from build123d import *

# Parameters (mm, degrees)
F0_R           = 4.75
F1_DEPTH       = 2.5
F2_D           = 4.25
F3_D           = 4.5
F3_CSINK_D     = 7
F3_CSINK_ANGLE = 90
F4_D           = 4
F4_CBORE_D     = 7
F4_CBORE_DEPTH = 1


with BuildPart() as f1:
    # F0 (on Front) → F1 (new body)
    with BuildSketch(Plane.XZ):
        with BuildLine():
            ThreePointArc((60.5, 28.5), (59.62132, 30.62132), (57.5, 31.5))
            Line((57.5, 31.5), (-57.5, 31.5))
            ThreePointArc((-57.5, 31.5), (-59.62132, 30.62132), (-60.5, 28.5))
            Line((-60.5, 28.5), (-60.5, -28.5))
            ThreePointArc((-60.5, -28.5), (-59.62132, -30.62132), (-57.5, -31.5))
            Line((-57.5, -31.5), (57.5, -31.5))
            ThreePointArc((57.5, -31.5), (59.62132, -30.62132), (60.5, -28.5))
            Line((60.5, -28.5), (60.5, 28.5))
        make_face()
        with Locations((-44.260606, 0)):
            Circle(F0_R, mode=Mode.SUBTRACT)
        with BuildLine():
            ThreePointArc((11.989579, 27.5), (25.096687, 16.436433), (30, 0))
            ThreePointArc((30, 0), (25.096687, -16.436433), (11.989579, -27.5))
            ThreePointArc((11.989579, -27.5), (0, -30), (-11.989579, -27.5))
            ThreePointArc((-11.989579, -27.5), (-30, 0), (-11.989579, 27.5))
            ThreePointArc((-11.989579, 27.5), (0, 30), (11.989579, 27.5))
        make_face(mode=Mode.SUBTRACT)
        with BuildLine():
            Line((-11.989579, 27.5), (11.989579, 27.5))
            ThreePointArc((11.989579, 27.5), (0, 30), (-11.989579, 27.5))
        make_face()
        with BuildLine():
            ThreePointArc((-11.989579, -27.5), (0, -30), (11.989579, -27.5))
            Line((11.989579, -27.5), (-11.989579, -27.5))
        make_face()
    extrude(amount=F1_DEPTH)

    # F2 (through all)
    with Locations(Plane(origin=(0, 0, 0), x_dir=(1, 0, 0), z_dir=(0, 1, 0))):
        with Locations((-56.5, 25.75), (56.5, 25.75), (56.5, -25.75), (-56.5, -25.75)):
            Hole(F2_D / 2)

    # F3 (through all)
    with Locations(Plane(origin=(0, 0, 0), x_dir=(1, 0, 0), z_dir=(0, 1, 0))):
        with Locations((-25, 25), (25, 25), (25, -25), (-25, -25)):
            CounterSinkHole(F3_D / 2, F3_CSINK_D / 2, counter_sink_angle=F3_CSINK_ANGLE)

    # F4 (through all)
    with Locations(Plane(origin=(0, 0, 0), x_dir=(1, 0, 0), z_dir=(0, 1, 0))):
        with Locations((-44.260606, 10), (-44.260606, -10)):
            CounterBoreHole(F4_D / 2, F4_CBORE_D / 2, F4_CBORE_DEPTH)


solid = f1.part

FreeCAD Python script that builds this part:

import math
import FreeCAD as App
import Part
import Sketcher
Q = App.Units.Quantity

doc = App.newDocument("Part")
body = doc.addObject("PartDesign::Body", "Body")

# Sketch on XZ plane
sketch1 = doc.addObject("Sketcher::SketchObject", "Sketch")
body.addObject(sketch1)
sketch1.AttachmentSupport = (doc.XZ_Plane, [""])
sketch1.MapMode = "FlatFace"
sketch1.addGeometry(Part.ArcOfCircle(Part.Circle(App.Vector(57.499999, 28.499999, 0), App.Vector(0, 0, 1), 3.000001), math.radians(0.000022), math.radians(89.999978)), False)
sketch1.addGeometry(Part.LineSegment(App.Vector(57.5, 31.5, 0), App.Vector(-57.5, 31.5, 0)), False)
sketch1.addGeometry(Part.ArcOfCircle(Part.Circle(App.Vector(-57.499999, 28.499999, 0), App.Vector(0, 0, 1), 3.000001), math.radians(90.000022), math.radians(179.999978)), False)
sketch1.addGeometry(Part.LineSegment(App.Vector(-60.5, 28.5, 0), App.Vector(-60.5, -28.5, 0)), False)
sketch1.addGeometry(Part.ArcOfCircle(Part.Circle(App.Vector(-57.499999, -28.499999, 0), App.Vector(0, 0, 1), 3.000001), math.radians(-179.999978), math.radians(-90.000022)), False)
sketch1.addGeometry(Part.LineSegment(App.Vector(-57.5, -31.5, 0), App.Vector(57.5, -31.5, 0)), False)
sketch1.addGeometry(Part.ArcOfCircle(Part.Circle(App.Vector(57.499999, -28.499999, 0), App.Vector(0, 0, 1), 3.000001), math.radians(-89.999978), math.radians(-0.000022)), False)
sketch1.addGeometry(Part.LineSegment(App.Vector(60.5, -28.5, 0), App.Vector(60.5, 28.5, 0)), False)
sketch1.addGeometry(Part.Circle(App.Vector(-44.260606, 0, 0), App.Vector(0, 0, 1), 4.75), False)
sketch1.addGeometry(Part.ArcOfCircle(Part.Circle(App.Vector(0, 0, 0), App.Vector(0, 0, 1), 30), math.radians(113.556465), math.radians(246.443535)), False)
sketch1.addGeometry(Part.LineSegment(App.Vector(-11.989579, 27.5, 0), App.Vector(11.989579, 27.5, 0)), False)
sketch1.addGeometry(Part.ArcOfCircle(Part.Circle(App.Vector(0.000002, 0.000002, 0), App.Vector(0, 0, 1), 29.999998), math.radians(-0.000003), math.radians(66.443538)), False)
sketch1.addGeometry(Part.ArcOfCircle(Part.Circle(App.Vector(0.000002, -0.000002, 0), App.Vector(0, 0, 1), 29.999998), math.radians(-66.443538), math.radians(0.000003)), False)
sketch1.addGeometry(Part.LineSegment(App.Vector(11.989579, -27.5, 0), App.Vector(-11.989579, -27.5, 0)), False)
sketch1.addConstraint(Sketcher.Constraint("Tangent", 0, 2, 1, 1))
sketch1.addConstraint(Sketcher.Constraint("Tangent", 1, 2, 2, 1))
sketch1.addConstraint(Sketcher.Constraint("Tangent", 2, 2, 3, 1))
sketch1.addConstraint(Sketcher.Constraint("Tangent", 3, 2, 4, 1))
sketch1.addConstraint(Sketcher.Constraint("Tangent", 4, 2, 5, 1))
sketch1.addConstraint(Sketcher.Constraint("Tangent", 5, 2, 6, 1))
sketch1.addConstraint(Sketcher.Constraint("Tangent", 6, 2, 7, 1))
sketch1.addConstraint(Sketcher.Constraint("Tangent", 7, 2, 0, 1))
sketch1.addConstraint(Sketcher.Constraint("Coincident", 9, 1, 10, 1))
sketch1.addConstraint(Sketcher.Constraint("Coincident", 10, 2, 11, 2))
sketch1.addConstraint(Sketcher.Constraint("Tangent", 11, 1, 12, 2))
sketch1.addConstraint(Sketcher.Constraint("Coincident", 12, 1, 13, 1))
sketch1.addConstraint(Sketcher.Constraint("Coincident", 13, 2, 9, 2))
sketch1.addConstraint(Sketcher.Constraint("Horizontal", 1))
sketch1.addConstraint(Sketcher.Constraint("Vertical", 3))
sketch1.addConstraint(Sketcher.Constraint("Horizontal", 5))
sketch1.addConstraint(Sketcher.Constraint("Vertical", 7))
sketch1.addConstraint(Sketcher.Constraint("Horizontal", 10))
sketch1.addConstraint(Sketcher.Constraint("Horizontal", 13))
sketch1.addConstraint(Sketcher.Constraint("Coincident", 9, 3, -1, 1))
sketch1.addConstraint(Sketcher.Constraint("Coincident", 11, 3, -1, 1))
sketch1.addConstraint(Sketcher.Constraint("Equal", 0, 2))
sketch1.addConstraint(Sketcher.Constraint("Equal", 2, 4))
sketch1.addConstraint(Sketcher.Constraint("Equal", 4, 6))
sketch1.addConstraint(Sketcher.Constraint("Equal", 11, 12))
sketch1.addConstraint(Sketcher.Constraint("Symmetric", 0, 3, 4, 3, -1, 1))
sketch1.addConstraint(Sketcher.Constraint("Symmetric", 9, 1, 12, 1, -1, 1))
sketch1.addConstraint(Sketcher.Constraint("PointOnObject", 8, 3, -1))
sketch1.addConstraint(Sketcher.Constraint("PointOnObject", 11, 1, -1))
sketch1.addConstraint(Sketcher.Constraint("Radius", 0, Q("3.000001 mm")))
sketch1.addConstraint(Sketcher.Constraint("Radius", 9, Q("30 mm")))
sketch1.addConstraint(Sketcher.Constraint("Diameter", 8, Q("9.5 mm")))
sketch1.addConstraint(Sketcher.Constraint("DistanceX", 1, 2, 1, 1, Q("115 mm")))
sketch1.addConstraint(Sketcher.Constraint("DistanceY", 3, 2, 3, 1, Q("57 mm")))
sketch1.addConstraint(Sketcher.Constraint("DistanceY", 9, 1, 2, 3, Q("0.999999 mm")))
sketch1.addConstraint(Sketcher.Constraint("DistanceX", 8, 3, 11, 3, Q("44.260608 mm")))
pad1 = doc.addObject("PartDesign::Pad", "Pad")
body.addObject(pad1)
pad1.Profile = sketch1
pad1.Length = 2.5

# Sketch on XZ plane
sketch2 = doc.addObject("Sketcher::SketchObject", "Sketch001")
body.addObject(sketch2)
sketch2.AttachmentSupport = (doc.XZ_Plane, [""])
sketch2.MapMode = "FlatFace"
sketch2.addGeometry(Part.Circle(App.Vector(-56.5, -25.75, 0), App.Vector(0, 0, 1), 2.125), False)
sketch2.addGeometry(Part.Circle(App.Vector(56.5, -25.75, 0), App.Vector(0, 0, 1), 2.125), False)
sketch2.addGeometry(Part.Circle(App.Vector(56.5, 25.75, 0), App.Vector(0, 0, 1), 2.125), False)
sketch2.addGeometry(Part.Circle(App.Vector(-56.5, 25.75, 0), App.Vector(0, 0, 1), 2.125), False)
sketch2.addConstraint(Sketcher.Constraint("Equal", 0, 1))
sketch2.addConstraint(Sketcher.Constraint("Equal", 1, 2))
sketch2.addConstraint(Sketcher.Constraint("Equal", 2, 3))
sketch2.addConstraint(Sketcher.Constraint("Symmetric", 0, 3, 2, 3, -1, 1))
sketch2.addConstraint(Sketcher.Constraint("Symmetric", 1, 3, 3, 3, -1, 1))
sketch2.addConstraint(Sketcher.Constraint("Symmetric", 0, 3, 1, 3, -2))
sketch2.addConstraint(Sketcher.Constraint("Diameter", 0, Q("4.25 mm")))
sketch2.addConstraint(Sketcher.Constraint("DistanceX", 0, 3, 1, 3, Q("113 mm")))
sketch2.addConstraint(Sketcher.Constraint("DistanceY", 1, 3, 2, 3, Q("51.5 mm")))
doc.recompute()
hole = doc.addObject("PartDesign::Hole", "Hole")
body.addObject(hole)
hole.Profile = sketch2
hole.ThreadType = "None"
hole.Diameter = 4.25
hole.DepthType = "ThroughAll"
hole.Reversed = True

# Sketch on XZ plane
sketch3 = doc.addObject("Sketcher::SketchObject", "Sketch002")
body.addObject(sketch3)
sketch3.AttachmentSupport = (doc.XZ_Plane, [""])
sketch3.MapMode = "FlatFace"
sketch3.addGeometry(Part.Circle(App.Vector(-25, -25, 0), App.Vector(0, 0, 1), 2.25), False)
sketch3.addGeometry(Part.Circle(App.Vector(25, -25, 0), App.Vector(0, 0, 1), 2.25), False)
sketch3.addGeometry(Part.Circle(App.Vector(25, 25, 0), App.Vector(0, 0, 1), 2.25), False)
sketch3.addGeometry(Part.Circle(App.Vector(-25, 25, 0), App.Vector(0, 0, 1), 2.25), False)
sketch3.addConstraint(Sketcher.Constraint("Equal", 0, 1))
sketch3.addConstraint(Sketcher.Constraint("Equal", 1, 2))
sketch3.addConstraint(Sketcher.Constraint("Equal", 2, 3))
sketch3.addConstraint(Sketcher.Constraint("Symmetric", 0, 3, 2, 3, -1, 1))
sketch3.addConstraint(Sketcher.Constraint("Symmetric", 1, 3, 3, 3, -1, 1))
sketch3.addConstraint(Sketcher.Constraint("Symmetric", 0, 3, 1, 3, -2))
sketch3.addConstraint(Sketcher.Constraint("Diameter", 0, Q("4.5 mm")))
sketch3.addConstraint(Sketcher.Constraint("DistanceX", 0, 3, -1, 1, Q("25 mm")))
sketch3.addConstraint(Sketcher.Constraint("DistanceY", 0, 3, -1, 1, Q("25 mm")))
doc.recompute()
hole2 = doc.addObject("PartDesign::Hole", "Hole001")
body.addObject(hole2)
hole2.Profile = sketch3
hole2.ThreadType = "None"
hole2.Diameter = 4.5
hole2.DepthType = "ThroughAll"
hole2.HoleCutType = "Countersink"
hole2.HoleCutDiameter = 7
hole2.HoleCutCountersinkAngle = 90
hole2.Reversed = True

# Sketch on XZ plane
sketch4 = doc.addObject("Sketcher::SketchObject", "Sketch003")
body.addObject(sketch4)
sketch4.AttachmentSupport = (doc.XZ_Plane, [""])
sketch4.MapMode = "FlatFace"
sketch4.addGeometry(Part.Circle(App.Vector(-44.260606, -10, 0), App.Vector(0, 0, 1), 2), False)
sketch4.addGeometry(Part.Circle(App.Vector(-44.260606, 10, 0), App.Vector(0, 0, 1), 2), False)
sketch4.addConstraint(Sketcher.Constraint("Equal", 0, 1))
sketch4.addConstraint(Sketcher.Constraint("Symmetric", 0, 3, 1, 3, -1))
sketch4.addConstraint(Sketcher.Constraint("Diameter", 0, Q("4 mm")))
sketch4.addConstraint(Sketcher.Constraint("DistanceY", 0, 3, -1, 1, Q("10 mm")))
sketch4.addConstraint(Sketcher.Constraint("DistanceX", 0, 3, -1, 1, Q("44.260606 mm")))
doc.recompute()
hole3 = doc.addObject("PartDesign::Hole", "Hole002")
body.addObject(hole3)
hole3.Profile = sketch4
hole3.ThreadType = "None"
hole3.Diameter = 4
hole3.DepthType = "ThroughAll"
hole3.HoleCutType = "Counterbore"
hole3.HoleCutDiameter = 7
hole3.HoleCutDepth = 1
hole3.Reversed = True

doc.recompute()
